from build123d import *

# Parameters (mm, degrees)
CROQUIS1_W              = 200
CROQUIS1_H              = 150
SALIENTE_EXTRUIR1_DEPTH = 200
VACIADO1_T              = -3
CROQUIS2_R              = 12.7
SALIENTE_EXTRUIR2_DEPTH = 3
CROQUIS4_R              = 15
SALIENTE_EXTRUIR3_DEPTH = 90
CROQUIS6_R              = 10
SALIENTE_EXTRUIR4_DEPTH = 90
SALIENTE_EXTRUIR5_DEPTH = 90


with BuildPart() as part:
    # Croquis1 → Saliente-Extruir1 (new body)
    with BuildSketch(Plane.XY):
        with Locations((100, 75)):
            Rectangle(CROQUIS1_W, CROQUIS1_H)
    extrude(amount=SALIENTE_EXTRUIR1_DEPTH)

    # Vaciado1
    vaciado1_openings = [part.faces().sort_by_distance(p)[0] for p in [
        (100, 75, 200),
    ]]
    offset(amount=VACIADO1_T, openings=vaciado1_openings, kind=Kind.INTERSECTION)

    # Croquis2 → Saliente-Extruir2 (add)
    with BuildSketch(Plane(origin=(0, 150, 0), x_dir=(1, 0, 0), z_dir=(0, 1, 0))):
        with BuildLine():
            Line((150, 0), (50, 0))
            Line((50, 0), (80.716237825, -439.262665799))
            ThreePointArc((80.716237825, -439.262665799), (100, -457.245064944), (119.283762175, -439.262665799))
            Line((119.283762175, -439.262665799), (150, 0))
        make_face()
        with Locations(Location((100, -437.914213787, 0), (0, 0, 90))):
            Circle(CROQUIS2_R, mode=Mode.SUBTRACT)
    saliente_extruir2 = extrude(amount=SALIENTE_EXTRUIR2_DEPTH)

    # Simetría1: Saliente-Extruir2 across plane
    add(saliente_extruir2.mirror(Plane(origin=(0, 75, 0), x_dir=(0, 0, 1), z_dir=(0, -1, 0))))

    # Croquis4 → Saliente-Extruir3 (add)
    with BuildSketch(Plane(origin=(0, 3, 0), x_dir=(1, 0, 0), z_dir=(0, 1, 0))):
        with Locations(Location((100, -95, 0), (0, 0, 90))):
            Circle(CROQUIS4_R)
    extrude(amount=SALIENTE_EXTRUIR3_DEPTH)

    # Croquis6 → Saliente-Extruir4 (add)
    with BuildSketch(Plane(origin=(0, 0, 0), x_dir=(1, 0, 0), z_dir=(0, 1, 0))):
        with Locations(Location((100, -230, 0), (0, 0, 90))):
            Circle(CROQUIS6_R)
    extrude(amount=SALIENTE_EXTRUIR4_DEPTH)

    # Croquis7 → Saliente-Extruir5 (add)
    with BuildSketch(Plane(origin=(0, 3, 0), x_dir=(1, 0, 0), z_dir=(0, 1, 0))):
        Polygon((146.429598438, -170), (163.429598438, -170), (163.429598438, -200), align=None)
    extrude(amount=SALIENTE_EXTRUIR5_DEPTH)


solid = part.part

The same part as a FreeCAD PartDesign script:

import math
import FreeCAD as App
import Part
import Sketcher
from FreeCAD import Vector
Q = App.Units.Quantity


def faces_at(feature, points):
    """Names of the faces that lie closest to the given points."""
    faces = feature.Shape.Faces
    near = lambda p: min(range(len(faces)), key=lambda i: faces[i].distToShape(Part.Vertex(*p))[0])
    return sorted({f"Face{near(p) + 1}" for p in points})


def add_polygon(sketch, points):
    """Adds a closed chain of lines whose ends are joined by coincident constraints."""
    first, n = sketch.GeometryCount, len(points)
    for a, b in zip(points, points[1:] + points[:1]):
        sketch.addGeometry(Part.LineSegment(App.Vector(*a, 0), App.Vector(*b, 0)), False)
    for i in range(n):
        sketch.addConstraint(Sketcher.Constraint("Coincident", first + i, 2, first + (i + 1) % n, 1))

doc = App.newDocument("Part")
body = doc.addObject("PartDesign::Body", "Body")

# Sketch on XY plane
sketch1 = body.newObject("Sketcher::SketchObject", "Sketch")
sketch1.AttachmentSupport = (doc.getObject("XY_Plane"), [""])
sketch1.MapMode = "FlatFace"
add_polygon(sketch1, [(0, 150), (0, 0), (200, 0), (200, 150)])  # lines 0-3
sketch1.addConstraint(Sketcher.Constraint("Vertical", 0))
sketch1.addConstraint(Sketcher.Constraint("Horizontal", 1))
sketch1.addConstraint(Sketcher.Constraint("Vertical", 2))
sketch1.addConstraint(Sketcher.Constraint("Horizontal", 3))
sketch1.addConstraint(Sketcher.Constraint("Coincident", 0, 2, -1, 1))
sketch1.addConstraint(Sketcher.Constraint("DistanceX", 1, 1, 1, 2, 200.0))
sketch1.addConstraint(Sketcher.Constraint("DistanceY", 0, 2, 0, 1, 150.0))
pad1 = body.newObject("PartDesign::Pad", "Pad")
pad1.Profile = sketch1
pad1.Length = 200
doc.recompute()

thickness = body.newObject("PartDesign::Thickness", "Thickness")
thickness.Base = (pad1, faces_at(pad1, [(100, 75, 200)]))
thickness.Value = 3
thickness.Reversed = True
thickness.Join = "Intersection"

# Sketch on XZ plane
sketch2 = body.newObject("Sketcher::SketchObject", "Sketch001")
sketch2.AttachmentSupport = (doc.getObject("XZ_Plane"), [""])
sketch2.MapMode = "FlatFace"
sketch2.AttachmentOffset = App.Placement(Vector(0, 0, -150), App.Rotation())
sketch2.addGeometry(Part.LineSegment(Vector(150, 0, 0), Vector(50, 0, 0)), False)
sketch2.addGeometry(Part.LineSegment(Vector(50, 0, 0), Vector(81, 439, 0)), False)
sketch2.addGeometry(Part.ArcOfCircle(Part.Circle(Vector(100, 438, 0), Vector(0, 0, 1), 19), math.radians(4), math.radians(176)), False)
sketch2.addGeometry(Part.LineSegment(Vector(119, 439, 0), Vector(150, 0, 0)), False)
sketch2.addGeometry(Part.Circle(Vector(100, 438, 0), Vector(0, 0, 1), 13), False)
sketch2.addConstraint(Sketcher.Constraint("Coincident", 0, 2, 1, 1))
sketch2.addConstraint(Sketcher.Constraint("Tangent", 1, 2, 2, 2))
sketch2.addConstraint(Sketcher.Constraint("Tangent", 2, 1, 3, 1))
sketch2.addConstraint(Sketcher.Constraint("Coincident", 3, 2, 0, 1))
sketch2.addConstraint(Sketcher.Constraint("Horizontal", 0))
sketch2.addConstraint(Sketcher.Constraint("Coincident", 4, 3, 2, 3))
sketch2.addConstraint(Sketcher.Constraint("PointOnObject", 0, 2, -1))
sketch2.addConstraint(Sketcher.Constraint("Horizontal", 1, 2, 2, 1))
sketch2.addConstraint(Sketcher.Constraint("Diameter", 4, 25.4))
sketch2.addConstraint(Sketcher.Constraint("DistanceX", 0, 2, 0, 1, 100.0))
sketch2.addConstraint(Sketcher.Constraint("Angle", 1, Q("86 deg")))
sketch2.addConstraint(Sketcher.Constraint("DistanceX", -1, 1, 2, 3, 100.0))
sketch2.addConstraint(Sketcher.Constraint("Radius", 2, 19.330851))
pad2 = body.newObject("PartDesign::Pad", "Pad001")
pad2.Profile = sketch2
pad2.Length = 3
pad2.Reversed = True
doc.recompute()

datumplane = body.newObject("PartDesign::Plane", "DatumPlane")
datumplane.AttachmentSupport = (doc.getObject("XZ_Plane"), [""])
datumplane.MapMode = "FlatFace"
datumplane.AttachmentOffset = App.Placement(Vector(0, 0, -75), App.Rotation())
mirrored = body.newObject("PartDesign::Mirrored", "Mirrored")
mirrored.Originals = [pad2]
mirrored.MirrorPlane = (datumplane, [""])
body.Tip = mirrored

# Sketch on XZ plane
sketch3 = body.newObject("Sketcher::SketchObject", "Sketch002")
sketch3.AttachmentSupport = (doc.getObject("XZ_Plane"), [""])
sketch3.MapMode = "FlatFace"
sketch3.AttachmentOffset = App.Placement(Vector(0, 0, -3), App.Rotation())
sketch3.addGeometry(Part.Circle(Vector(100, 95, 0), Vector(0, 0, 1), 15), False)
sketch3.addConstraint(Sketcher.Constraint("Diameter", 0, 30.0))
sketch3.addConstraint(Sketcher.Constraint("DistanceX", -1, 1, 0, 3, 100.0))
sketch3.addConstraint(Sketcher.Constraint("DistanceY", -1, 1, 0, 3, 95.0))
pad3 = body.newObject("PartDesign::Pad", "Pad002")
pad3.Profile = sketch3
pad3.Length = 90
pad3.Reversed = True

# Sketch on XZ plane
sketch4 = body.newObject("Sketcher::SketchObject", "Sketch003")
sketch4.AttachmentSupport = (doc.getObject("XZ_Plane"), [""])
sketch4.MapMode = "FlatFace"
sketch4.addGeometry(Part.Circle(Vector(100, 230, 0), Vector(0, 0, 1), 10), False)
sketch4.addConstraint(Sketcher.Constraint("Diameter", 0, 20.0))
sketch4.addConstraint(Sketcher.Constraint("DistanceX", -1, 1, 0, 3, 100.0))
sketch4.addConstraint(Sketcher.Constraint("DistanceY", -1, 1, 0, 3, 230.0))
pad4 = body.newObject("PartDesign::Pad", "Pad003")
pad4.Profile = sketch4
pad4.Length = 90
pad4.Reversed = True

# Sketch on XZ plane
sketch5 = body.newObject("Sketcher::SketchObject", "Sketch004")
sketch5.AttachmentSupport = (doc.getObject("XZ_Plane"), [""])
sketch5.MapMode = "FlatFace"
sketch5.AttachmentOffset = App.Placement(Vector(0, 0, -3), App.Rotation())
add_polygon(sketch5, [(163, 170), (146, 170), (163, 200)])  # lines 0-2
sketch5.addConstraint(Sketcher.Constraint("Horizontal", 0))
sketch5.addConstraint(Sketcher.Constraint("Vertical", 2))
sketch5.addConstraint(Sketcher.Constraint("DistanceX", 0, 2, 0, 1, 17.0))
sketch5.addConstraint(Sketcher.Constraint("DistanceY", 2, 2, 2, 1, 30.0))
sketch5.addConstraint(Sketcher.Constraint("DistanceY", -1, 1, 0, 2, 170.0))
sketch5.addConstraint(Sketcher.Constraint("DistanceX", -1, 1, 0, 2, 146.429598))
pad5 = body.newObject("PartDesign::Pad", "Pad004")
pad5.Profile = sketch5
pad5.Length = 90
pad5.Reversed = True

doc.recompute()
